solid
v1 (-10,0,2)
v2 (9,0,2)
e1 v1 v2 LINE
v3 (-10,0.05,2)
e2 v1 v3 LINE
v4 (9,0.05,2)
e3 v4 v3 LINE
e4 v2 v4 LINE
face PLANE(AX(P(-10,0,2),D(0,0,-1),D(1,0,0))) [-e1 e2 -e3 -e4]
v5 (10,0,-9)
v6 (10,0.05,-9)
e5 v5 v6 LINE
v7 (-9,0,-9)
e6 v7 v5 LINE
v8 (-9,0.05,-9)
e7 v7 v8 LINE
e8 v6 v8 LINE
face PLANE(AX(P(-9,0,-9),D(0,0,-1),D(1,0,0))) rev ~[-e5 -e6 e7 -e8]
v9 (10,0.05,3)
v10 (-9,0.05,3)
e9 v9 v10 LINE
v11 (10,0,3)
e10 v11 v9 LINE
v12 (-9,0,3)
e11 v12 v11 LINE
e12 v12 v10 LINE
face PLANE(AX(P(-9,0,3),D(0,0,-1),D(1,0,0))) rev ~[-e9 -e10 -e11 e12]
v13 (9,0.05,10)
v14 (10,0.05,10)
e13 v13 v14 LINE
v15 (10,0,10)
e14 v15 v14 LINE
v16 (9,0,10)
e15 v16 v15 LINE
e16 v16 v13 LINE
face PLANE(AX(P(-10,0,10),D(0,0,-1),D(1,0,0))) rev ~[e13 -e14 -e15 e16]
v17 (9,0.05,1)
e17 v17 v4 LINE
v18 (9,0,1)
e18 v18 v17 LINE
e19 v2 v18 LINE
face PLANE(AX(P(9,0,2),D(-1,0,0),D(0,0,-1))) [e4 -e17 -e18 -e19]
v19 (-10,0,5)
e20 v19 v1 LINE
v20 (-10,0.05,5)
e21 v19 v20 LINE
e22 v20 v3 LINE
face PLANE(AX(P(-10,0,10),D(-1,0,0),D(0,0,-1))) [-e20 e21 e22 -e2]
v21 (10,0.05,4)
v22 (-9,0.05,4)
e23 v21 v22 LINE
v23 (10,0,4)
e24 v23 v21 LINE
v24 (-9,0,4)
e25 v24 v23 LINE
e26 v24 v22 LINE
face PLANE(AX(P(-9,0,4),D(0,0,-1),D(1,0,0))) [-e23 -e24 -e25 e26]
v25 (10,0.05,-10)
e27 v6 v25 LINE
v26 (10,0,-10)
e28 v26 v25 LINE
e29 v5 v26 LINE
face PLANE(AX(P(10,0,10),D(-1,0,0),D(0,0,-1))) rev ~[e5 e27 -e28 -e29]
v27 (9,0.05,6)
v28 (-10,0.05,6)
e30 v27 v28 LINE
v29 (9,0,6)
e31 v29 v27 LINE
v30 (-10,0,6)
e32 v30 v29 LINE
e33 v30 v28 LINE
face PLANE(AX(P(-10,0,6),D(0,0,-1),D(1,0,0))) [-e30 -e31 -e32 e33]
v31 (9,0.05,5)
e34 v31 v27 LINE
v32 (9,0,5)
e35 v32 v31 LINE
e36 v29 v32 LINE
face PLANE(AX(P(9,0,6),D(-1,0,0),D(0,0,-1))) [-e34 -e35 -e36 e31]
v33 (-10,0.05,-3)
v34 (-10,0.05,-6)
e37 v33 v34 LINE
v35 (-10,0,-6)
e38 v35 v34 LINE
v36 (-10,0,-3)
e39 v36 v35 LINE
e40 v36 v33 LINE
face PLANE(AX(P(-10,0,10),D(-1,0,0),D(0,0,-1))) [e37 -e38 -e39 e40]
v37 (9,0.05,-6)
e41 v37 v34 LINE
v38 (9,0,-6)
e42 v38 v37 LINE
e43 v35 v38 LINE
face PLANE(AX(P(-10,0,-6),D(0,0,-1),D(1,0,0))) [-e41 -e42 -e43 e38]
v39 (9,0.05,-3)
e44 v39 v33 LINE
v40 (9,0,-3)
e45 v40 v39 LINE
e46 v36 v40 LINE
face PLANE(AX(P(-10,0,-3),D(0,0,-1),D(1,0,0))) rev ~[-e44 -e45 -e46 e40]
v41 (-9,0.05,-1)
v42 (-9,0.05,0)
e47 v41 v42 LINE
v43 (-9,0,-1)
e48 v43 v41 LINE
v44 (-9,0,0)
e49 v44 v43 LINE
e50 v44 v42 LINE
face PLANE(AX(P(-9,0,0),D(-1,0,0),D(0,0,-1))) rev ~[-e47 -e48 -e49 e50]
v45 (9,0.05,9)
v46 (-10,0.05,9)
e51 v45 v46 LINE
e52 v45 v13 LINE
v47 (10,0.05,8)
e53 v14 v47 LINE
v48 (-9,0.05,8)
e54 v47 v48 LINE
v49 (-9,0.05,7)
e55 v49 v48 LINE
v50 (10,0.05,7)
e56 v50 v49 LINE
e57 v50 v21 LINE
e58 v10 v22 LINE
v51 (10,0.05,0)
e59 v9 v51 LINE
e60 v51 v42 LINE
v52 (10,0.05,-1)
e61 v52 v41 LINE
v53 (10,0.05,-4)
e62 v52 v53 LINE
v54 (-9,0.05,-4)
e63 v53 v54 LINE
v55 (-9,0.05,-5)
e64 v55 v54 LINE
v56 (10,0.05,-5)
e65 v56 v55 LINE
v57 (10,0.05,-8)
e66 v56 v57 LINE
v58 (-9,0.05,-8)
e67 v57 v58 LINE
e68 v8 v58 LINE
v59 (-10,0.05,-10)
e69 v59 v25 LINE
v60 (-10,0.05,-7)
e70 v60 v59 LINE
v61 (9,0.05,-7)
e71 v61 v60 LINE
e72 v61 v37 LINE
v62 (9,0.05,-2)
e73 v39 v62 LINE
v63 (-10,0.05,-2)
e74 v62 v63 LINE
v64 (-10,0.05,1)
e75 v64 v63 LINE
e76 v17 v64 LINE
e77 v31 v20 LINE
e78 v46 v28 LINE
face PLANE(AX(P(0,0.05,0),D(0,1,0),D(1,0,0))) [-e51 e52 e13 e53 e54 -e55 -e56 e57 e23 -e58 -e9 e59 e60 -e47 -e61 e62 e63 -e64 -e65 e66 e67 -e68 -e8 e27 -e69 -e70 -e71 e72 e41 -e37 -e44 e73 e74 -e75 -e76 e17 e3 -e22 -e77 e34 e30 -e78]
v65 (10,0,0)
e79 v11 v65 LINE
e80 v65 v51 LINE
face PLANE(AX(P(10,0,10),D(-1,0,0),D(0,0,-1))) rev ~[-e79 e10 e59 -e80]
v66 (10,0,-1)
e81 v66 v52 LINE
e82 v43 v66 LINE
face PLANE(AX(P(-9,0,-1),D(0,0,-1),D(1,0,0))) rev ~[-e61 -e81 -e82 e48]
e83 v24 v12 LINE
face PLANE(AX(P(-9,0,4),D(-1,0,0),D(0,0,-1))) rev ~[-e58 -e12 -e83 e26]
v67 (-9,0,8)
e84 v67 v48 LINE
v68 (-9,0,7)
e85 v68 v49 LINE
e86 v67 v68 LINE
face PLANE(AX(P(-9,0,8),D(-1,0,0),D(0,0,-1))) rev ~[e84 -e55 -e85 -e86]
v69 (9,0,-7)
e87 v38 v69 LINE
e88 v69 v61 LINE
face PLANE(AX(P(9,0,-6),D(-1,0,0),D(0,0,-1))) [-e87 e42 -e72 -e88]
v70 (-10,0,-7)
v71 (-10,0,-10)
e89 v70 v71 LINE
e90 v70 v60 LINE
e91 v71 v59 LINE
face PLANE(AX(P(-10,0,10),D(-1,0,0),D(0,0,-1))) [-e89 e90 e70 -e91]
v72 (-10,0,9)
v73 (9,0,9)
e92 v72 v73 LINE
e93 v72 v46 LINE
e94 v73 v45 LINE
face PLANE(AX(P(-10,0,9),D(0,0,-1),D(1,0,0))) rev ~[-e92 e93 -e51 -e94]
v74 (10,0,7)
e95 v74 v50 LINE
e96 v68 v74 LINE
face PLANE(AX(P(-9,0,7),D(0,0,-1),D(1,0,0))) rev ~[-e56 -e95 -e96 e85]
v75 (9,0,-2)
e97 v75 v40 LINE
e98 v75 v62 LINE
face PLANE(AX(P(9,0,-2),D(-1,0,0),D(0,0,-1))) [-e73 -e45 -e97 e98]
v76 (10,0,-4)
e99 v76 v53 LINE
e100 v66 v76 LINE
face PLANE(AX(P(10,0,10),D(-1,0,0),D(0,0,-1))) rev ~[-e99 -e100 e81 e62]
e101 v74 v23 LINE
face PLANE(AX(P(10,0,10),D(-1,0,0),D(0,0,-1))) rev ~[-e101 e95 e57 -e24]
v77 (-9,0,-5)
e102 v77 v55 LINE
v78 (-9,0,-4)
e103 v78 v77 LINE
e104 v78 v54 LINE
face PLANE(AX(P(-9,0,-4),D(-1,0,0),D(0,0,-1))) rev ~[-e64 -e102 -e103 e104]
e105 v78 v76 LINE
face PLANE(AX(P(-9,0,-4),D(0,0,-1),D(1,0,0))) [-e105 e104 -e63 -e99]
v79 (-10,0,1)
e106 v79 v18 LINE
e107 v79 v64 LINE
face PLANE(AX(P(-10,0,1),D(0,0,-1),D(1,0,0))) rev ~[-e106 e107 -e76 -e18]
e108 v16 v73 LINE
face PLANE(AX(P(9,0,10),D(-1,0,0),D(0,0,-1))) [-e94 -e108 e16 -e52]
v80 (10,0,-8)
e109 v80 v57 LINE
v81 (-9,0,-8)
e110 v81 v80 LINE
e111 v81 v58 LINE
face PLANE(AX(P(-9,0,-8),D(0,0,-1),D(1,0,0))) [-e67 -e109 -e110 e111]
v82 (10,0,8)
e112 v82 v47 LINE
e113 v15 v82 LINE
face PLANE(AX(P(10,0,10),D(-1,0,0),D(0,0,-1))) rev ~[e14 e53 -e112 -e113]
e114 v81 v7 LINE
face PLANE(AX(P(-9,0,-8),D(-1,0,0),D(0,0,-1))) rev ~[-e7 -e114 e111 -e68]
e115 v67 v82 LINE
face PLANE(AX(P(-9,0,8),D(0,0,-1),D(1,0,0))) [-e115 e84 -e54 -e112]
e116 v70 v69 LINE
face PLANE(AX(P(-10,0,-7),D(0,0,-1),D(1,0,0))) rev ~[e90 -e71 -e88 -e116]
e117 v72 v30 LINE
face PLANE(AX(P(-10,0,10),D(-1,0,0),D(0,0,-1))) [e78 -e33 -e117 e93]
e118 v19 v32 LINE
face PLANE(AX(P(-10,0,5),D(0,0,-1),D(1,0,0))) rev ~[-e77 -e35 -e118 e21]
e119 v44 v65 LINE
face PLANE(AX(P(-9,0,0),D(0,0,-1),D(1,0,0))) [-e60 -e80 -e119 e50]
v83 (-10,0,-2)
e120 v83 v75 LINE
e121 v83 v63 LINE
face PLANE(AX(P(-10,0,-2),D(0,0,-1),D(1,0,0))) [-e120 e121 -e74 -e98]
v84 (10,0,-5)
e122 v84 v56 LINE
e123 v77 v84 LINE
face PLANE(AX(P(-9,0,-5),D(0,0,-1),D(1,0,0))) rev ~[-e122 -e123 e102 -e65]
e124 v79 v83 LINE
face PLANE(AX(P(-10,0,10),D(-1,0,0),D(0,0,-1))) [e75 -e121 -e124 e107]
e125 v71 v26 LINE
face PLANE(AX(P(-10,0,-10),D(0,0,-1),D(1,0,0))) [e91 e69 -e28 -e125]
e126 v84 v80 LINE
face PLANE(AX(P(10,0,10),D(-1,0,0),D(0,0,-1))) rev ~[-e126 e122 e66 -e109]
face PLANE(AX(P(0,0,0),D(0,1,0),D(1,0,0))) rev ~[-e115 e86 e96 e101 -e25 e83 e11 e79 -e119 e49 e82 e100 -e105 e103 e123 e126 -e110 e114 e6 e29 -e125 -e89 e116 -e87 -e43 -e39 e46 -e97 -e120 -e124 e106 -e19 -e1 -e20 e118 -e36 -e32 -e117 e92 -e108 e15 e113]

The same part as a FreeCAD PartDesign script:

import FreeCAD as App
import Part
import Sketcher
Q = App.Units.Quantity

doc = App.newDocument("Part")
params = doc.addObject("Spreadsheet::Sheet", "Params")
for row, (alias, value) in enumerate([
    ("sketch1_width", "20 mm"),
    ("pad1_length", "0.05 mm"),
    ("sketch2_width", "19 mm"),
    ("sketch2_height", "1 mm"),
    ("sketch3_width", "19 mm"),
    ("sketch3_height", "1 mm"),
    ("linearpattern_pitch", "4 mm"),
    ("linearpattern2_pitch", "4 mm"),
], start=1):
    params.set(f"A{row}", alias)
    params.set(f"B{row}", "=" + value)
    params.setAlias(f"B{row}", alias)

body = doc.addObject("PartDesign::Body", "Body")

# Sketch on XZ plane
sketch1 = body.newObject("Sketcher::SketchObject", "Sketch")
sketch1.AttachmentSupport = (doc.getObject("XZ_Plane"), [""])
sketch1.MapMode = "FlatFace"
sketch1.addGeometry(Part.LineSegment(App.Vector(-10, -10, 0), App.Vector(-10, 10, 0)), False)
sketch1.addGeometry(Part.LineSegment(App.Vector(-10, 10, 0), App.Vector(10, 10, 0)), False)
sketch1.addGeometry(Part.LineSegment(App.Vector(10, 10, 0), App.Vector(10, -10, 0)), False)
sketch1.addGeometry(Part.LineSegment(App.Vector(10, -10, 0), App.Vector(-10, -10, 0)), False)
sketch1.addConstraint(Sketcher.Constraint("Coincident", 0, 2, 1, 1))
sketch1.addConstraint(Sketcher.Constraint("Coincident", 1, 2, 2, 1))
sketch1.addConstraint(Sketcher.Constraint("Coincident", 2, 2, 3, 1))
sketch1.addConstraint(Sketcher.Constraint("Coincident", 3, 2, 0, 1))
sketch1.addConstraint(Sketcher.Constraint("Vertical", 0))
sketch1.addConstraint(Sketcher.Constraint("Horizontal", 1))
sketch1.addConstraint(Sketcher.Constraint("Vertical", 2))
sketch1.addConstraint(Sketcher.Constraint("Horizontal", 3))
sketch1.addConstraint(Sketcher.Constraint("Symmetric", 0, 2, 2, 2, -1, 1))
sketch1.addConstraint(Sketcher.Constraint("Equal", 3, 0))
sketch1.addConstraint(Sketcher.Constraint("DistanceX", 1, 1, 1, 2, Q("20 mm")))
sketch1.setExpression("Constraints[10]", "Params.sketch1_width")
pad1 = body.newObject("PartDesign::Pad", "Pad")
pad1.Profile = sketch1
pad1.setExpression("Length", "Params.pad1_length")
pad1.Reversed = True

# Sketch on XZ plane
sketch2 = body.newObject("Sketcher::SketchObject", "Sketch001")
sketch2.AttachmentSupport = (doc.getObject("XZ_Plane"), [""])
sketch2.MapMode = "FlatFace"
sketch2.addGeometry(Part.LineSegment(App.Vector(-9, -9, 0), App.Vector(-9, -8, 0)), False)
sketch2.addGeometry(Part.LineSegment(App.Vector(-9, -8, 0), App.Vector(10, -8, 0)), False)
sketch2.addGeometry(Part.LineSegment(App.Vector(10, -8, 0), App.Vector(10, -9, 0)), False)
sketch2.addGeometry(Part.LineSegment(App.Vector(10, -9, 0), App.Vector(-9, -9, 0)), False)
sketch2.addConstraint(Sketcher.Constraint("Coincident", 0, 2, 1, 1))
sketch2.addConstraint(Sketcher.Constraint("Coincident", 1, 2, 2, 1))
sketch2.addConstraint(Sketcher.Constraint("Coincident", 2, 2, 3, 1))
sketch2.addConstraint(Sketcher.Constraint("Coincident", 3, 2, 0, 1))
sketch2.addConstraint(Sketcher.Constraint("Vertical", 0))
sketch2.addConstraint(Sketcher.Constraint("Horizontal", 1))
sketch2.addConstraint(Sketcher.Constraint("Vertical", 2))
sketch2.addConstraint(Sketcher.Constraint("Horizontal", 3))
sketch2.addConstraint(Sketcher.Constraint("DistanceX", 1, 1, 1, 2, Q("19 mm")))
sketch2.addConstraint(Sketcher.Constraint("DistanceY", 0, 1, 0, 2, Q("1 mm")))
sketch2.addConstraint(Sketcher.Constraint("DistanceX", 0, 2, -1, 1, Q("9 mm")))
sketch2.addConstraint(Sketcher.Constraint("DistanceY", 0, 2, -1, 1, Q("8 mm")))
sketch2.setExpression("Constraints[8]", "Params.sketch2_width")
sketch2.setExpression("Constraints[9]", "Params.sketch2_height")
pocket1 = body.newObject("PartDesign::Pocket", "Pocket")
pocket1.Profile = sketch2
pocket1.Type = "ThroughAll"

# Sketch on XZ plane
sketch3 = body.newObject("Sketcher::SketchObject", "Sketch002")
sketch3.AttachmentSupport = (doc.getObject("XZ_Plane"), [""])
sketch3.MapMode = "FlatFace"
sketch3.addGeometry(Part.LineSegment(App.Vector(-10, -7, 0), App.Vector(-10, -6, 0)), False)
sketch3.addGeometry(Part.LineSegment(App.Vector(-10, -6, 0), App.Vector(9, -6, 0)), False)
sketch3.addGeometry(Part.LineSegment(App.Vector(9, -6, 0), App.Vector(9, -7, 0)), False)
sketch3.addGeometry(Part.LineSegment(App.Vector(9, -7, 0), App.Vector(-10, -7, 0)), False)
sketch3.addConstraint(Sketcher.Constraint("Coincident", 0, 2, 1, 1))
sketch3.addConstraint(Sketcher.Constraint("Coincident", 1, 2, 2, 1))
sketch3.addConstraint(Sketcher.Constraint("Coincident", 2, 2, 3, 1))
sketch3.addConstraint(Sketcher.Constraint("Coincident", 3, 2, 0, 1))
sketch3.addConstraint(Sketcher.Constraint("Vertical", 0))
sketch3.addConstraint(Sketcher.Constraint("Horizontal", 1))
sketch3.addConstraint(Sketcher.Constraint("Vertical", 2))
sketch3.addConstraint(Sketcher.Constraint("Horizontal", 3))
sketch3.addConstraint(Sketcher.Constraint("DistanceX", 1, 1, 1, 2, Q("19 mm")))
sketch3.addConstraint(Sketcher.Constraint("DistanceY", 0, 1, 0, 2, Q("1 mm")))
sketch3.addConstraint(Sketcher.Constraint("DistanceX", 0, 2, -1, 1, Q("10 mm")))
sketch3.addConstraint(Sketcher.Constraint("DistanceY", 0, 2, -1, 1, Q("6 mm")))
sketch3.setExpression("Constraints[8]", "Params.sketch3_width")
sketch3.setExpression("Constraints[9]", "Params.sketch3_height")
pocket2 = body.newObject("PartDesign::Pocket", "Pocket001")
pocket2.Profile = sketch3
pocket2.Type = "ThroughAll"
doc.recompute()

linearpattern = body.newObject("PartDesign::LinearPattern", "LinearPattern")
linearpattern.Originals = [pocket1]
linearpattern.Direction = (doc.getObject("Z_Axis"), [""])
linearpattern.Mode = "offset"
linearpattern.setExpression("Offset", "Params.linearpattern_pitch")
linearpattern.Occurrences = 5
body.Tip = linearpattern
doc.recompute()

linearpattern2 = body.newObject("PartDesign::LinearPattern", "LinearPattern001")
linearpattern2.Originals = [pocket2]
linearpattern2.Direction = (doc.getObject("Z_Axis"), [""])
linearpattern2.Mode = "offset"
linearpattern2.setExpression("Offset", "Params.linearpattern2_pitch")
linearpattern2.Occurrences = 5
body.Tip = linearpattern2

doc.recompute()
